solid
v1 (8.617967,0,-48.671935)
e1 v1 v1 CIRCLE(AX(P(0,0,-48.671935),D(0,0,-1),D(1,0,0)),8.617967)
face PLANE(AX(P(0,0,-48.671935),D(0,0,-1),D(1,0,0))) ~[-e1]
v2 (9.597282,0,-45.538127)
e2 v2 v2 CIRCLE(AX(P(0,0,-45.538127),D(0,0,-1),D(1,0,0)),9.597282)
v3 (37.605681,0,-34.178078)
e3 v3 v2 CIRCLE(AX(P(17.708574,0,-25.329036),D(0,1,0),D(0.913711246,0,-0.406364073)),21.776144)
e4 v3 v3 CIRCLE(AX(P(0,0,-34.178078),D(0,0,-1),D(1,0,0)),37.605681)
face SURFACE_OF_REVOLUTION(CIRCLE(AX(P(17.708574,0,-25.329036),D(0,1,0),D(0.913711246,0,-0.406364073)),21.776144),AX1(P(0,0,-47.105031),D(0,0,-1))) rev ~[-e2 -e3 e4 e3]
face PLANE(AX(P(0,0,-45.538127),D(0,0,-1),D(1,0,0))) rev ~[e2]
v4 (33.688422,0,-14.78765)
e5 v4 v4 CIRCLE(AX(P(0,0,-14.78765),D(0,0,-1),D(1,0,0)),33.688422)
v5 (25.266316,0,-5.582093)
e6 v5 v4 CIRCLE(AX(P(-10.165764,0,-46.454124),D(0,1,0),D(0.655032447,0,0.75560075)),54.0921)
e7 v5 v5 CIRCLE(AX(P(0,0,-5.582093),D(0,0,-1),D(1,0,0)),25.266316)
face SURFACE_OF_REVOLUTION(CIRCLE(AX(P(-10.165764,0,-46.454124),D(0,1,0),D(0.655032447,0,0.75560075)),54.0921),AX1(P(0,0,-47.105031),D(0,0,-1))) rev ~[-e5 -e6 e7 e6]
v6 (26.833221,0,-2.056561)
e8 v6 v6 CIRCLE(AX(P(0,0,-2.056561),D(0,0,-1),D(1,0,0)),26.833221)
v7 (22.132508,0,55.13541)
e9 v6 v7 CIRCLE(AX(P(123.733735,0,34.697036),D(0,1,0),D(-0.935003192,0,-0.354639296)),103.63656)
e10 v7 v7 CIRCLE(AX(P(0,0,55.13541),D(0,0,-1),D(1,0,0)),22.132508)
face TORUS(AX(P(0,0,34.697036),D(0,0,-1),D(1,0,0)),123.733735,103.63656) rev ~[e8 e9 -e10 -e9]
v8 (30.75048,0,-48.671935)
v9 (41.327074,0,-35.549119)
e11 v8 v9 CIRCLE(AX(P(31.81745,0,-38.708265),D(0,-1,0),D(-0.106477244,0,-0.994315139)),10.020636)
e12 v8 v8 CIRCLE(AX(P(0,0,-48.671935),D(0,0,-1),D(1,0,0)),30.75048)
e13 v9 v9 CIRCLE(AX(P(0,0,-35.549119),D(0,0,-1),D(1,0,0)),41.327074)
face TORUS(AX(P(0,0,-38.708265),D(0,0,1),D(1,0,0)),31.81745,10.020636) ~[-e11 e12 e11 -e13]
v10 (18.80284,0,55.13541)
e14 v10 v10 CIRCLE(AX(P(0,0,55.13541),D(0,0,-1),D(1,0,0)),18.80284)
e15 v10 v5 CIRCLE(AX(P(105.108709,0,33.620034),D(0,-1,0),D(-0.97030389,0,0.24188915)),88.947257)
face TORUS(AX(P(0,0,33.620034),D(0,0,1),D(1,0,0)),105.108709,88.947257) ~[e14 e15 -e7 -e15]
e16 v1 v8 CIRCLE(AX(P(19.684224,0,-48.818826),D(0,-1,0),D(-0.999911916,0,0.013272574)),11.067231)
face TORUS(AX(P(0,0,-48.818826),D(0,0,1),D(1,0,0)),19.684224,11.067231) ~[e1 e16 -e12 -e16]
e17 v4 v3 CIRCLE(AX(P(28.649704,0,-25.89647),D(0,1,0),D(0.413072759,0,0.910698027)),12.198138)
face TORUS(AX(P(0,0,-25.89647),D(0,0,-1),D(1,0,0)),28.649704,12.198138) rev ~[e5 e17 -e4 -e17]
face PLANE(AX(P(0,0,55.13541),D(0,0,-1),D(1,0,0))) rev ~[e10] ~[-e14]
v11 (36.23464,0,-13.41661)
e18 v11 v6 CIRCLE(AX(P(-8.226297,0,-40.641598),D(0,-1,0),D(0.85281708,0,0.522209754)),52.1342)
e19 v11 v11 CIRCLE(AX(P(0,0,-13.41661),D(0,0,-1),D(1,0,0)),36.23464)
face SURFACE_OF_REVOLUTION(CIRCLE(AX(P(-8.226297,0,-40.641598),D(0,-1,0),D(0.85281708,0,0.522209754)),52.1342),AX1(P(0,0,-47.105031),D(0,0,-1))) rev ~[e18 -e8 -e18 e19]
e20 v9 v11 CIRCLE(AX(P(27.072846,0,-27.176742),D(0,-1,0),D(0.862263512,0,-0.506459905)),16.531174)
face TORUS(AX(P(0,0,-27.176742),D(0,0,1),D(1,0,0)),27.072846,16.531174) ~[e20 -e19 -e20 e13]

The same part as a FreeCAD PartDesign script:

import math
import FreeCAD as App
import Part
import Sketcher
Q = App.Units.Quantity

doc = App.newDocument("Part")
body = doc.addObject("PartDesign::Body", "Body")

# Sketch on XZ plane
sketch1 = body.newObject("Sketcher::SketchObject", "Sketch")
sketch1.AttachmentSupport = (doc.getObject("XZ_Plane"), [""])
sketch1.MapMode = "FlatFace"
sketch1.addGeometry([
    Part.LineSegment(App.Vector(0, -45.538127, 0), App.Vector(0, -48.671935, 0)),  # 0
    Part.LineSegment(App.Vector(0, -48.671935, 0), App.Vector(8.617967, -48.671935, 0)),  # 1
    Part.ArcOfCircle(Part.Circle(App.Vector(19.684224, -48.818826, 0), App.Vector(0, 0, 1), 11.067231), math.radians(179.239515), math.radians(360.760485)),  # 2
    Part.ArcOfCircle(Part.Circle(App.Vector(31.81745, -38.708265, 0), App.Vector(0, 0, 1), 10.020636), math.radians(-96.112284), math.radians(18.37675)),  # 3
    Part.ArcOfCircle(Part.Circle(App.Vector(27.072846, -27.176742, 0), App.Vector(0, 0, 1), 16.531174), math.radians(-30.428312), math.radians(56.343464)),  # 4
    Part.ArcOfCircle(Part.Circle(App.Vector(-8.226297, -40.641598, 0), App.Vector(0, 0, 1), 52.1342), math.radians(31.480595), math.radians(47.740777)),  # 5
    Part.ArcOfCircle(Part.Circle(App.Vector(123.733735, 34.697036, 0), App.Vector(0, 0, 1), 103.63656), math.radians(168.626028), math.radians(200.771339)),  # 6
    Part.LineSegment(App.Vector(22.132508, 55.13541, 0), App.Vector(18.80284, 55.13541, 0)),  # 7
    Part.ArcOfCircle(Part.Circle(App.Vector(105.108709, 33.620034, 0), App.Vector(0, 0, 1), 88.947257), math.radians(166.001934), math.radians(206.150756)),  # 8
    Part.ArcOfCircle(Part.Circle(App.Vector(-10.165764, -46.454124, 0), App.Vector(0, 0, 1), 54.0921), math.radians(35.832506), math.radians(49.07789)),  # 9
    Part.ArcOfCircle(Part.Circle(App.Vector(28.649704, -25.89647, 0), App.Vector(0, 0, 1), 12.198138), math.radians(-42.759615), math.radians(65.601993)),  # 10
    Part.ArcOfCircle(Part.Circle(App.Vector(17.708574, -25.329036, 0), App.Vector(0, 0, 1), 21.776144), math.radians(-111.868969), math.radians(-23.976635)),  # 11
    Part.LineSegment(App.Vector(9.597282, -45.538127, 0), App.Vector(0, -45.538127, 0)),  # 12
], False)
sketch1.addConstraint([
    Sketcher.Constraint("Coincident", 0, 2, 1, 1),
    Sketcher.Constraint("Coincident", 1, 2, 2, 1),
    Sketcher.Constraint("Coincident", 2, 2, 3, 1),
    Sketcher.Constraint("Coincident", 3, 2, 4, 1),
    Sketcher.Constraint("Coincident", 4, 2, 5, 1),
    Sketcher.Constraint("Coincident", 5, 2, 6, 2),
    Sketcher.Constraint("Coincident", 6, 1, 7, 1),
    Sketcher.Constraint("Coincident", 7, 2, 8, 1),
    Sketcher.Constraint("Coincident", 8, 2, 9, 2),
    Sketcher.Constraint("Coincident", 9, 1, 10, 2),
    Sketcher.Constraint("Coincident", 10, 1, 11, 2),
    Sketcher.Constraint("Coincident", 11, 1, 12, 1),
    Sketcher.Constraint("Coincident", 12, 2, 0, 1),
    Sketcher.Constraint("Vertical", 0),
    Sketcher.Constraint("Horizontal", 1),
    Sketcher.Constraint("Horizontal", 7),
    Sketcher.Constraint("Horizontal", 12),
    Sketcher.Constraint("PointOnObject", 0, 2, -2),
    Sketcher.Constraint("Horizontal", 1, 2, 2, 2),
    Sketcher.Constraint("Radius", 5, Q("52.1342 mm")),
    Sketcher.Constraint("Radius", 9, Q("54.0921 mm")),
    Sketcher.Constraint("Radius", 2, Q("11.067231 mm")),
    Sketcher.Constraint("Radius", 6, Q("103.63656 mm")),
    Sketcher.Constraint("Radius", 3, Q("10.020636 mm")),
    Sketcher.Constraint("Radius", 4, Q("16.531174 mm")),
    Sketcher.Constraint("Radius", 8, Q("88.947257 mm")),
    Sketcher.Constraint("Radius", 10, Q("12.198138 mm")),
    Sketcher.Constraint("Radius", 11, Q("21.776144 mm")),
    Sketcher.Constraint("DistanceY", 8, 3, 6, 3, Q("1.077002 mm")),
    Sketcher.Constraint("DistanceX", 5, 3, 10, 3, Q("36.876 mm")),
    Sketcher.Constraint("DistanceX", 7, 2, 7, 1, Q("3.329668 mm")),
    Sketcher.Constraint("DistanceY", 3, 3, 6, 3, Q("73.4053 mm")),
    Sketcher.Constraint("DistanceY", 2, 3, 9, 3, Q("2.364702 mm")),
    Sketcher.Constraint("DistanceY", 0, 2, 11, 3, Q("23.342899 mm")),
    Sketcher.Constraint("DistanceX", 7, 2, 4, 2, Q("17.4318 mm")),
    Sketcher.Constraint("DistanceX", 5, 2, 9, 1, Q("6.855201 mm")),
    Sketcher.Constraint("DistanceX", 2, 2, 10, 1, Q("6.855201 mm")),
    Sketcher.Constraint("DistanceY", 2, 3, 11, 1, Q("3.280699 mm")),
    Sketcher.Constraint("DistanceX", 1, 1, 1, 2, Q("8.617967 mm")),
    Sketcher.Constraint("DistanceX", 12, 2, 12, 1, Q("9.597282 mm")),
    Sketcher.Constraint("DistanceY", 0, 2, 0, 1, Q("3.133808 mm")),
    Sketcher.Constraint("DistanceX", -1, 1, 3, 3, Q("31.81745 mm")),
    Sketcher.Constraint("DistanceX", -1, 1, 8, 3, Q("105.108709 mm")),
    Sketcher.Constraint("DistanceY", 10, 3, -1, 1, Q("25.89647 mm")),
    Sketcher.Constraint("DistanceY", 3, 2, -1, 1, Q("35.549119 mm")),
    Sketcher.Constraint("DistanceX", -1, 1, 4, 2, Q("36.23464 mm")),
    Sketcher.Constraint("DistanceY", 4, 2, -1, 1, Q("13.41661 mm")),
    Sketcher.Constraint("DistanceY", 5, 2, -1, 1, Q("2.056561 mm")),
])
revolution = body.newObject("PartDesign::Revolution", "Revolution")
revolution.Profile = sketch1
revolution.ReferenceAxis = (sketch1, ["V_Axis"])
revolution.Angle = 360

doc.recompute()
